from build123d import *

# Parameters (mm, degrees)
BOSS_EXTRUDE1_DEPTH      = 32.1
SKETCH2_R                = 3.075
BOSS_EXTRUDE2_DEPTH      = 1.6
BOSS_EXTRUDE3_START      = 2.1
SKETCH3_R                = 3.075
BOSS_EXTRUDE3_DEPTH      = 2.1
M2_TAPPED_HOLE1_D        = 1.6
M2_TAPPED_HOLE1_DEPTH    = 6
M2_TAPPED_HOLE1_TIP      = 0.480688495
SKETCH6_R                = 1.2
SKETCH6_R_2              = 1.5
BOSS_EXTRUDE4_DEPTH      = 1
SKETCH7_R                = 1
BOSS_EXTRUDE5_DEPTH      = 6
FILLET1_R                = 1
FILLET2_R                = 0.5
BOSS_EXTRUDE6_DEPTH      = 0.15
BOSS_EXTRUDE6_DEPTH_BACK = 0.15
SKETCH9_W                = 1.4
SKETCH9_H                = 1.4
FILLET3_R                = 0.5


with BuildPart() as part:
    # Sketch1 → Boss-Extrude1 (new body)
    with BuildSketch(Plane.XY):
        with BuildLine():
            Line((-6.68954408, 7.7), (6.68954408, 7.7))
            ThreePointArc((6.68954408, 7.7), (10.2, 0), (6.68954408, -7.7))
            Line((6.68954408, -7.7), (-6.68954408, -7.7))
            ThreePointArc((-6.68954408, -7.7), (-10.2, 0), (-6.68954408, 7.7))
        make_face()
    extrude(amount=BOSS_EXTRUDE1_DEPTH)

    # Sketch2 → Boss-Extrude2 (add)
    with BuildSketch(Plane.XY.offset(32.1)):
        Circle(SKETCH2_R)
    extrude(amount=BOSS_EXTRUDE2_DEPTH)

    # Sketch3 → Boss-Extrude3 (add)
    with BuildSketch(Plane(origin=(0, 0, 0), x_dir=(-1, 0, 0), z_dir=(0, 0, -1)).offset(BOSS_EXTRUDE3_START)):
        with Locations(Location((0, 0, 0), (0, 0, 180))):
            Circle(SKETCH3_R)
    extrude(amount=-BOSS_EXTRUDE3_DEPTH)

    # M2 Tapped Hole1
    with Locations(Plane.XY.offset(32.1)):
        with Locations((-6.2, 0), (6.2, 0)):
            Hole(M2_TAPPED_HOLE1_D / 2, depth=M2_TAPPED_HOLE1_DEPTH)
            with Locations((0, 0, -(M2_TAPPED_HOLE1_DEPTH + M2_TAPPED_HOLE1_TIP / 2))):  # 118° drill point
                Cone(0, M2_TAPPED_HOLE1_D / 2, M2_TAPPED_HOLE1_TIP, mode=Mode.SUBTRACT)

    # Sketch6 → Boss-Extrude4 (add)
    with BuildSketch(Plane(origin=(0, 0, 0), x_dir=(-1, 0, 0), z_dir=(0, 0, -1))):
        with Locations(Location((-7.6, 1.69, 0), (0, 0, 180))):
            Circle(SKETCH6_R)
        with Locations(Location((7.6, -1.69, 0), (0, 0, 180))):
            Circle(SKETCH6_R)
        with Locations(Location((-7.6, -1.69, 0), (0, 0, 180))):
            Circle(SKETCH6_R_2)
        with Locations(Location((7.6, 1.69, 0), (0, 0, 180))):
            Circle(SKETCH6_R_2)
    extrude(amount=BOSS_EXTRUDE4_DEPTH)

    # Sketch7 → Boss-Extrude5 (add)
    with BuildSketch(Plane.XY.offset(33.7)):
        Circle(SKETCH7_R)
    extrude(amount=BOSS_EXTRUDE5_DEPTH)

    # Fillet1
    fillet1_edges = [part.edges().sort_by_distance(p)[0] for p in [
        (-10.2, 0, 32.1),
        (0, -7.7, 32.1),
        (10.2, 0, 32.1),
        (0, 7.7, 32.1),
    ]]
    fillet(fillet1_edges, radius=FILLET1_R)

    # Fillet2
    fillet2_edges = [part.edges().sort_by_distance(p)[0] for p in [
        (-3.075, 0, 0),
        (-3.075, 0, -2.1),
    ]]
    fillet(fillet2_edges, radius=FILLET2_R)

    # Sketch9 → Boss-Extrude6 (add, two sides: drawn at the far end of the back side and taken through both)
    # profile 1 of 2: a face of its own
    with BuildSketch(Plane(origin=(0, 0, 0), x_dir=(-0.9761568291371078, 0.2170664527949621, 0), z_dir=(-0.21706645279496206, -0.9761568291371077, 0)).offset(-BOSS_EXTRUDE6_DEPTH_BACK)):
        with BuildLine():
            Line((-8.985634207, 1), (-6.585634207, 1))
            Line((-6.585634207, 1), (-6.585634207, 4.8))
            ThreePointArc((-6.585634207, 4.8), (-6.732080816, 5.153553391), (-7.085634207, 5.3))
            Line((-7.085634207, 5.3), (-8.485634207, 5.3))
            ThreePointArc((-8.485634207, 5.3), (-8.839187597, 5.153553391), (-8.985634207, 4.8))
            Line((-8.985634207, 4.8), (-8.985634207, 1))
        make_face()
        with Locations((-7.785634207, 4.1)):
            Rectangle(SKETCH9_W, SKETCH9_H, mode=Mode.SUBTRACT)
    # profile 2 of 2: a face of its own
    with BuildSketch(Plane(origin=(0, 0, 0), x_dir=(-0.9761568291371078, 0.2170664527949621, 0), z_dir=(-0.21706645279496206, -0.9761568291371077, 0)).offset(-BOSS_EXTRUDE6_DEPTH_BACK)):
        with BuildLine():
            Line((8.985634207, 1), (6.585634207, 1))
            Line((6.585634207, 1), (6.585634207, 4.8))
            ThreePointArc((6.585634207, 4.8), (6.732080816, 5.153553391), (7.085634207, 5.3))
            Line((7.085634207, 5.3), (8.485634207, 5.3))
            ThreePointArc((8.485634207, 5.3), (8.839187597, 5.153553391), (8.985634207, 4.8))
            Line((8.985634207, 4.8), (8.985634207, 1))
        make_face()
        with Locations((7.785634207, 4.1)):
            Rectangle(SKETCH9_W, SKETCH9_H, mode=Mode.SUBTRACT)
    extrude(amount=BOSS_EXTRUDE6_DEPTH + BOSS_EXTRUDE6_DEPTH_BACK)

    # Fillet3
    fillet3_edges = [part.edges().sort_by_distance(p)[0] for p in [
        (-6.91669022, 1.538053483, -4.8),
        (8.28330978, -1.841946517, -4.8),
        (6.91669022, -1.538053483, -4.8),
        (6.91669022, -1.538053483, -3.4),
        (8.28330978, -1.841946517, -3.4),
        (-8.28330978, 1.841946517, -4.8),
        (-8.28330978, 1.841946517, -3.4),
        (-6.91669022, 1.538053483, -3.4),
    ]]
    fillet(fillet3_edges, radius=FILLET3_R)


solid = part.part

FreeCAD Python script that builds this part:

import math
import FreeCAD as App
import Part
import Sketcher


def edges_at(feature, points):
    """Names of the edges that pass closest to the given points."""
    edges = feature.Shape.Edges
    near = lambda p: min(range(len(edges)), key=lambda i: edges[i].distToShape(Part.Vertex(*p))[0])
    return sorted({f"Edge{near(p) + 1}" for p in points})


def add_polygon(sketch, points):
    """Adds a closed chain of lines whose ends are joined by coincident constraints."""
    first, n = sketch.GeometryCount, len(points)
    for a, b in zip(points, points[1:] + points[:1]):
        sketch.addGeometry(Part.LineSegment(App.Vector(*a, 0), App.Vector(*b, 0)), False)
    for i in range(n):
        sketch.addConstraint(Sketcher.Constraint("Coincident", first + i, 2, first + (i + 1) % n, 1))

doc = App.newDocument("Part")
params = doc.addObject("Spreadsheet::Sheet", "Params")
for row, (alias, value) in enumerate([
    ("sketch1_radius", "10.2 mm"),
    ("pad1_length", "32.1 mm"),
    ("sketch2_diameter", "6.15 mm"),
    ("pad2_length", "1.6 mm"),
    ("sketch3_diameter", "6.15 mm"),
    ("pad3_length", "2.1 mm"),
    ("sketch4_diameter", "1.6 mm"),
    ("hole_diameter", "1.6 mm"),
    ("hole_depth", "6 mm"),
    ("sketch5_diameter", "3 mm"),
    ("sketch5_diameter2", "2.4 mm"),
    ("pad4_length", "1 mm"),
    ("sketch6_diameter", "2 mm"),
    ("pad5_length", "6 mm"),
    ("fillet_radius", "1 mm"),
    ("fillet2_radius", "0.5 mm"),
    ("sketch7_radius", "0.5 mm"),
    ("sketch7_width", "2.4 mm"),
    ("sketch7_height", "3.8 mm"),
    ("pad6_length", "0.15 mm"),
    ("pad6_length2", "0.15 mm"),
    ("fillet3_radius", "0.5 mm"),
], start=1):
    params.set(f"A{row}", alias)
    params.set(f"B{row}", "=" + value)
    params.setAlias(f"B{row}", alias)

body = doc.addObject("PartDesign::Body", "Body")

# Sketch on XY plane
sketch1 = body.newObject("Sketcher::SketchObject", "Sketch")
sketch1.AttachmentSupport = (doc.getObject("XY_Plane"), [""])
sketch1.MapMode = "FlatFace"
sketch1.addGeometry(Part.LineSegment(App.Vector(6.689544, 7.7, 0), App.Vector(-6.689544, 7.7, 0)), False)
sketch1.addGeometry(Part.ArcOfCircle(Part.Circle(App.Vector(0, 0, 0), App.Vector(0, 0, 1), 10.2), math.radians(130.983196), math.radians(229.016804)), False)
sketch1.addGeometry(Part.LineSegment(App.Vector(-6.689544, -7.7, 0), App.Vector(6.689544, -7.7, 0)), False)
sketch1.addGeometry(Part.ArcOfCircle(Part.Circle(App.Vector(0, 0, 0), App.Vector(0, 0, 1), 10.2), math.radians(-49.016804), math.radians(49.016804)), False)
sketch1.addConstraint(Sketcher.Constraint("Coincident", 0, 2, 1, 1))
sketch1.addConstraint(Sketcher.Constraint("Coincident", 1, 2, 2, 1))
sketch1.addConstraint(Sketcher.Constraint("Coincident", 2, 2, 3, 1))
sketch1.addConstraint(Sketcher.Constraint("Coincident", 3, 2, 0, 1))
sketch1.addConstraint(Sketcher.Constraint("Horizontal", 0))
sketch1.addConstraint(Sketcher.Constraint("Horizontal", 2))
sketch1.addConstraint(Sketcher.Constraint("Coincident", 1, 3, -1, 1))
sketch1.addConstraint(Sketcher.Constraint("Coincident", 3, 3, -1, 1))
sketch1.addConstraint(Sketcher.Constraint("Equal", 1, 3))
sketch1.addConstraint(Sketcher.Constraint("Vertical", 0, 2, 1, 2))
sketch1.addConstraint(Sketcher.Constraint("Radius", 1, 10.2))
sketch1.addConstraint(Sketcher.Constraint("DistanceY", -1, 1, 0, 2, 7.7))
sketch1.setExpression("Constraints[10]", "Params.sketch1_radius")
pad1 = body.newObject("PartDesign::Pad", "Pad")
pad1.Profile = sketch1
pad1.setExpression("Length", "Params.pad1_length")

# Sketch on XY plane
sketch2 = body.newObject("Sketcher::SketchObject", "Sketch001")
sketch2.AttachmentSupport = (doc.getObject("XY_Plane"), [""])
sketch2.MapMode = "FlatFace"
sketch2.AttachmentOffset = App.Placement(App.Vector(0, 0, 32.1), App.Rotation())
sketch2.addGeometry(Part.Circle(App.Vector(0, 0, 0), App.Vector(0, 0, 1), 3.075), False)
sketch2.addConstraint(Sketcher.Constraint("Coincident", 0, 3, -1, 1))
sketch2.addConstraint(Sketcher.Constraint("Diameter", 0, 6.15))
sketch2.setExpression("Constraints[1]", "Params.sketch2_diameter")
pad2 = body.newObject("PartDesign::Pad", "Pad001")
pad2.Profile = sketch2
pad2.setExpression("Length", "Params.pad2_length")

# Sketch on XY plane
sketch3 = body.newObject("Sketcher::SketchObject", "Sketch002")
sketch3.AttachmentSupport = (doc.getObject("XY_Plane"), [""])
sketch3.MapMode = "FlatFace"
sketch3.AttachmentOffset = App.Placement(App.Vector(0, 0, -2.1), App.Rotation())
sketch3.addGeometry(Part.Circle(App.Vector(0, 0, 0), App.Vector(0, 0, 1), 3.075), False)
sketch3.addConstraint(Sketcher.Constraint("Coincident", 0, 3, -1, 1))
sketch3.addConstraint(Sketcher.Constraint("Diameter", 0, 6.15))
sketch3.setExpression("Constraints[1]", "Params.sketch3_diameter")
pad3 = body.newObject("PartDesign::Pad", "Pad002")
pad3.Profile = sketch3
pad3.setExpression("Length", "Params.pad3_length")

# Sketch on XY plane
sketch4 = body.newObject("Sketcher::SketchObject", "Sketch003")
sketch4.AttachmentSupport = (doc.getObject("XY_Plane"), [""])
sketch4.MapMode = "FlatFace"
sketch4.AttachmentOffset = App.Placement(App.Vector(0, 0, 32.1), App.Rotation())
sketch4.addGeometry(Part.Circle(App.Vector(-6.2, 0, 0), App.Vector(0, 0, 1), 0.8), False)
sketch4.addGeometry(Part.Circle(App.Vector(6.2, 0, 0), App.Vector(0, 0, 1), 0.8), False)
sketch4.addConstraint(Sketcher.Constraint("Equal", 0, 1))
sketch4.addConstraint(Sketcher.Constraint("Symmetric", 0, 3, 1, 3, -1, 1))
sketch4.addConstraint(Sketcher.Constraint("PointOnObject", 0, 3, -1))
sketch4.addConstraint(Sketcher.Constraint("Diameter", 0, 1.6))
sketch4.addConstraint(Sketcher.Constraint("DistanceX", 0, 3, -1, 1, 6.2))
sketch4.setExpression("Constraints[3]", "Params.sketch4_diameter")
doc.recompute()
hole = body.newObject("PartDesign::Hole", "Hole")
hole.Profile = sketch4
hole.ThreadType = "None"
hole.setExpression("Diameter", "Params.hole_diameter")
hole.DepthType = "Dimension"
hole.setExpression("Depth", "Params.hole_depth")
hole.DrillPoint = "Angled"
hole.DrillPointAngle = 118

# Sketch on XY plane
sketch5 = body.newObject("Sketcher::SketchObject", "Sketch004")
sketch5.AttachmentSupport = (doc.getObject("XY_Plane"), [""])
sketch5.MapMode = "FlatFace"
sketch5.addGeometry(Part.Circle(App.Vector(7.6, 1.69, 0), App.Vector(0, 0, 1), 1.2), False)
sketch5.addGeometry(Part.Circle(App.Vector(-7.6, -1.69, 0), App.Vector(0, 0, 1), 1.2), False)
sketch5.addGeometry(Part.Circle(App.Vector(7.6, -1.69, 0), App.Vector(0, 0, 1), 1.5), False)
sketch5.addGeometry(Part.Circle(App.Vector(-7.6, 1.69, 0), App.Vector(0, 0, 1), 1.5), False)
sketch5.addConstraint(Sketcher.Constraint("Equal", 0, 1))
sketch5.addConstraint(Sketcher.Constraint("Equal", 2, 3))
sketch5.addConstraint(Sketcher.Constraint("Symmetric", 0, 3, 1, 3, -1, 1))
sketch5.addConstraint(Sketcher.Constraint("Symmetric", 2, 3, 3, 3, -1, 1))
sketch5.addConstraint(Sketcher.Constraint("Symmetric", 1, 3, 2, 3, -2))
sketch5.addConstraint(Sketcher.Constraint("Diameter", 2, 3.0))
sketch5.addConstraint(Sketcher.Constraint("Diameter", 0, 2.4))
sketch5.addConstraint(Sketcher.Constraint("DistanceX", -1, 1, 0, 3, 7.6))
sketch5.addConstraint(Sketcher.Constraint("DistanceY", -1, 1, 0, 3, 1.69))
sketch5.setExpression("Constraints[5]", "Params.sketch5_diameter")
sketch5.setExpression("Constraints[6]", "Params.sketch5_diameter2")
pad4 = body.newObject("PartDesign::Pad", "Pad003")
pad4.Profile = sketch5
pad4.setExpression("Length", "Params.pad4_length")
pad4.Reversed = True

# Sketch on XY plane
sketch6 = body.newObject("Sketcher::SketchObject", "Sketch005")
sketch6.AttachmentSupport = (doc.getObject("XY_Plane"), [""])
sketch6.MapMode = "FlatFace"
sketch6.AttachmentOffset = App.Placement(App.Vector(0, 0, 33.7), App.Rotation())
sketch6.addGeometry(Part.Circle(App.Vector(0, 0, 0), App.Vector(0, 0, 1), 1), False)
sketch6.addConstraint(Sketcher.Constraint("Coincident", 0, 3, -1, 1))
sketch6.addConstraint(Sketcher.Constraint("Diameter", 0, 2.0))
sketch6.setExpression("Constraints[1]", "Params.sketch6_diameter")
pad5 = body.newObject("PartDesign::Pad", "Pad004")
pad5.Profile = sketch6
pad5.setExpression("Length", "Params.pad5_length")
doc.recompute()

fillet = body.newObject("PartDesign::Fillet", "Fillet")
fillet.Base = (pad5, edges_at(pad5, [
    (-10.2, 0, 32.1),
    (0, -7.7, 32.1),
    (10.2, 0, 32.1),
    (0, 7.7, 32.1),
]))
fillet.setExpression("Radius", "Params.fillet_radius")
doc.recompute()

fillet2 = body.newObject("PartDesign::Fillet", "Fillet001")
fillet2.Base = (fillet, edges_at(fillet, [(-3.075, 0, 0), (-3.075, 0, -2.1)]))
fillet2.setExpression("Radius", "Params.fillet2_radius")

# Sketch on an angled plane
sketch7 = body.newObject("Sketcher::SketchObject", "Sketch006")
sketch7.Placement = App.Placement(App.Vector(0, 0, 0), App.Rotation(App.Vector(-0.976156829, 0.217066453, 0), App.Vector(0, 0, -1), App.Vector(-0.217066453, -0.976156829, 0), "ZXY"))
sketch7.addGeometry(Part.LineSegment(App.Vector(-8.985634, 1, 0), App.Vector(-6.585634, 1, 0)), False)  # 0
sketch7.addGeometry(Part.LineSegment(App.Vector(-6.585634, 1, 0), App.Vector(-6.585634, 4.8, 0)), False)  # 1
sketch7.addGeometry(Part.ArcOfCircle(Part.Circle(App.Vector(-7.085634, 4.8, 0), App.Vector(0, 0, 1), 0.5), math.radians(0), math.radians(90)), False)  # 2
sketch7.addGeometry(Part.LineSegment(App.Vector(-7.085634, 5.3, 0), App.Vector(-8.485634, 5.3, 0)), False)  # 3
sketch7.addGeometry(Part.ArcOfCircle(Part.Circle(App.Vector(-8.485634, 4.8, 0), App.Vector(0, 0, 1), 0.5), math.radians(90), math.radians(180)), False)  # 4
sketch7.addGeometry(Part.LineSegment(App.Vector(-8.985634, 4.8, 0), App.Vector(-8.985634, 1, 0)), False)  # 5
add_polygon(sketch7, [(-7.085634, 3.4), (-8.485634, 3.4), (-8.485634, 4.8), (-7.085634, 4.8)])  # lines 6-9
sketch7.addGeometry(Part.LineSegment(App.Vector(6.585634, 1, 0), App.Vector(8.985634, 1, 0)), False)  # 10
sketch7.addGeometry(Part.LineSegment(App.Vector(8.985634, 1, 0), App.Vector(8.985634, 4.8, 0)), False)  # 11
sketch7.addGeometry(Part.ArcOfCircle(Part.Circle(App.Vector(8.485634, 4.8, 0), App.Vector(0, 0, 1), 0.5), math.radians(0), math.radians(90)), False)  # 12
sketch7.addGeometry(Part.LineSegment(App.Vector(8.485634, 5.3, 0), App.Vector(7.085634, 5.3, 0)), False)  # 13
sketch7.addGeometry(Part.ArcOfCircle(Part.Circle(App.Vector(7.085634, 4.8, 0), App.Vector(0, 0, 1), 0.5), math.radians(90), math.radians(180)), False)  # 14
sketch7.addGeometry(Part.LineSegment(App.Vector(6.585634, 4.8, 0), App.Vector(6.585634, 1, 0)), False)  # 15
add_polygon(sketch7, [(7.085634, 3.4), (7.085634, 4.8), (8.485634, 4.8), (8.485634, 3.4)])  # lines 16-19
sketch7.addConstraint(Sketcher.Constraint("Coincident", 0, 2, 1, 1))
sketch7.addConstraint(Sketcher.Constraint("Tangent", 1, 2, 2, 1))
sketch7.addConstraint(Sketcher.Constraint("Tangent", 2, 2, 3, 1))
sketch7.addConstraint(Sketcher.Constraint("Tangent", 3, 2, 4, 1))
sketch7.addConstraint(Sketcher.Constraint("Tangent", 4, 2, 5, 1))
sketch7.addConstraint(Sketcher.Constraint("Coincident", 5, 2, 0, 1))
sketch7.addConstraint(Sketcher.Constraint("Coincident", 10, 2, 11, 1))
sketch7.addConstraint(Sketcher.Constraint("Tangent", 11, 2, 12, 1))
sketch7.addConstraint(Sketcher.Constraint("Tangent", 12, 2, 13, 1))
sketch7.addConstraint(Sketcher.Constraint("Tangent", 13, 2, 14, 1))
sketch7.addConstraint(Sketcher.Constraint("Tangent", 14, 2, 15, 1))
sketch7.addConstraint(Sketcher.Constraint("Coincident", 15, 2, 10, 1))
sketch7.addConstraint(Sketcher.Constraint("Horizontal", 0))
sketch7.addConstraint(Sketcher.Constraint("Vertical", 1))
sketch7.addConstraint(Sketcher.Constraint("Horizontal", 3))
sketch7.addConstraint(Sketcher.Constraint("Vertical", 5))
sketch7.addConstraint(Sketcher.Constraint("Horizontal", 6))
sketch7.addConstraint(Sketcher.Constraint("Vertical", 7))
sketch7.addConstraint(Sketcher.Constraint("Horizontal", 8))
sketch7.addConstraint(Sketcher.Constraint("Vertical", 9))
sketch7.addConstraint(Sketcher.Constraint("Horizontal", 10))
sketch7.addConstraint(Sketcher.Constraint("Vertical", 11))
sketch7.addConstraint(Sketcher.Constraint("Horizontal", 13))
sketch7.addConstraint(Sketcher.Constraint("Vertical", 15))
sketch7.addConstraint(Sketcher.Constraint("Vertical", 16))
sketch7.addConstraint(Sketcher.Constraint("Horizontal", 17))
sketch7.addConstraint(Sketcher.Constraint("Vertical", 18))
sketch7.addConstraint(Sketcher.Constraint("Horizontal", 19))
sketch7.addConstraint(Sketcher.Constraint("Coincident", 7, 2, 4, 3))
sketch7.addConstraint(Sketcher.Constraint("Coincident", 8, 2, 2, 3))
sketch7.addConstraint(Sketcher.Constraint("Coincident", 16, 2, 14, 3))
sketch7.addConstraint(Sketcher.Constraint("Coincident", 17, 2, 12, 3))
sketch7.addConstraint(Sketcher.Constraint("Equal", 4, 12))
sketch7.addConstraint(Sketcher.Constraint("Symmetric", 4, 3, 12, 3, -2))
sketch7.addConstraint(Sketcher.Constraint("Symmetric", 0, 2, 15, 2, -2))
sketch7.addConstraint(Sketcher.Constraint("Horizontal", 9, 2, 18, 2))
sketch7.addConstraint(Sketcher.Constraint("Equal", 19, 7))
sketch7.addConstraint(Sketcher.Constraint("Radius", 2, 0.5))
sketch7.addConstraint(Sketcher.Constraint("DistanceX", 0, 1, 0, 2, 2.4))
sketch7.addConstraint(Sketcher.Constraint("DistanceY", 1, 1, 1, 2, 3.8))
sketch7.addConstraint(Sketcher.Constraint("DistanceY", -1, 1, 0, 2, 1.0))
sketch7.addConstraint(Sketcher.Constraint("DistanceX", 2, 3, 12, 3, 15.571268))
sketch7.setExpression("Constraints[45]", "Params.sketch7_radius")
sketch7.setExpression("Constraints[46]", "Params.sketch7_width")
sketch7.setExpression("Constraints[47]", "Params.sketch7_height")
pad6 = body.newObject("PartDesign::Pad", "Pad005")
pad6.Profile = sketch7
pad6.Type = "TwoLengths"
pad6.setExpression("Length", "Params.pad6_length")
pad6.setExpression("Length2", "Params.pad6_length2")
doc.recompute()

fillet3 = body.newObject("PartDesign::Fillet", "Fillet002")
fillet3.Base = (pad6, edges_at(pad6, [
    (-6.917, 1.538, -4.8),
    (8.283, -1.842, -4.8),
    (6.917, -1.538, -4.8),
    (6.917, -1.538, -3.4),
    (8.283, -1.842, -3.4),
    (-8.283, 1.842, -4.8),
    (-8.283, 1.842, -3.4),
    (-6.917, 1.538, -3.4),
]))
fillet3.setExpression("Radius", "Params.fillet3_radius")

doc.recompute()
